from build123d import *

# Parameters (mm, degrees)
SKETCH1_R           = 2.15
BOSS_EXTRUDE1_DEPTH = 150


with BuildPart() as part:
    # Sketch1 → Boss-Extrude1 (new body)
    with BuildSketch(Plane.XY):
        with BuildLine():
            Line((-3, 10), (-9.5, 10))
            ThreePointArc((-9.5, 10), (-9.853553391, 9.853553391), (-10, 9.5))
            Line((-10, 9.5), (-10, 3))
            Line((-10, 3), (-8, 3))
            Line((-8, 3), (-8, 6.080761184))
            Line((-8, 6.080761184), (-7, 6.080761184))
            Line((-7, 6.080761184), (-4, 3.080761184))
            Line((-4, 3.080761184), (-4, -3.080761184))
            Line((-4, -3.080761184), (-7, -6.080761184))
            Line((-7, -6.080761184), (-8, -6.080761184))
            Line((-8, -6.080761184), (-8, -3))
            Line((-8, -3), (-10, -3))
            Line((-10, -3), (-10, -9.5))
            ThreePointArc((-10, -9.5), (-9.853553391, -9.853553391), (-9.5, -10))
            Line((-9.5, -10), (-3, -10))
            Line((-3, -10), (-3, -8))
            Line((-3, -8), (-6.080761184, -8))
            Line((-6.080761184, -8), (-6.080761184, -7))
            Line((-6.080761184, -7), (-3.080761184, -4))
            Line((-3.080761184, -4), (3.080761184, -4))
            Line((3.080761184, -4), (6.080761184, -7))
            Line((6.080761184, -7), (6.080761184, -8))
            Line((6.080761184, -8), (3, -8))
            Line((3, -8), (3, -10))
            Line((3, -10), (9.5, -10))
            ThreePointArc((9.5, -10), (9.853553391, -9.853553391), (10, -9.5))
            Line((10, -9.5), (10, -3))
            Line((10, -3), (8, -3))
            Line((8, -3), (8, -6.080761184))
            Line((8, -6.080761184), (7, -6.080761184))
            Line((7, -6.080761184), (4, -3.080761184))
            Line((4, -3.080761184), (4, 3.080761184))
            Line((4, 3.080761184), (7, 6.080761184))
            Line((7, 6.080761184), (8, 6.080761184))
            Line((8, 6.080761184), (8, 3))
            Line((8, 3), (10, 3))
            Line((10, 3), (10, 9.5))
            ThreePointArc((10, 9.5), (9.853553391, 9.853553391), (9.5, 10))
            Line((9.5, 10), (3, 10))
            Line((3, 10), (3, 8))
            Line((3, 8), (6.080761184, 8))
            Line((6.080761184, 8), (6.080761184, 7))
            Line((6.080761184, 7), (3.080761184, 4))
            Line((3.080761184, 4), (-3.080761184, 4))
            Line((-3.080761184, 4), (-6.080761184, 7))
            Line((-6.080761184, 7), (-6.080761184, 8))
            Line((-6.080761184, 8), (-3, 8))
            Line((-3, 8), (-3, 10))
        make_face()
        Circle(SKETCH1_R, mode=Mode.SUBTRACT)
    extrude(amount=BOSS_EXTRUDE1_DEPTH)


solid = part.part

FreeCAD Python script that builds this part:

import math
import FreeCAD as App
import Part
import Sketcher

doc = App.newDocument("Part")
body = doc.addObject("PartDesign::Body", "Body")

# Sketch on XY plane
sketch1 = body.newObject("Sketcher::SketchObject", "Sketch")
sketch1.AttachmentSupport = (doc.getObject("XY_Plane"), [""])
sketch1.MapMode = "FlatFace"
sketch1.addGeometry([
    Part.LineSegment(App.Vector(-3, 10, 0), App.Vector(-9.5, 10, 0)),  # 0
    Part.ArcOfCircle(Part.Circle(App.Vector(-9.5, 9.5, 0), App.Vector(0, 0, 1), 0.5), math.radians(90), math.radians(180)),  # 1
    Part.LineSegment(App.Vector(-10, 9.5, 0), App.Vector(-10, 3, 0)),  # 2
    Part.LineSegment(App.Vector(-10, 3, 0), App.Vector(-8, 3, 0)),  # 3
    Part.LineSegment(App.Vector(-8, 3, 0), App.Vector(-8, 6.08, 0)),  # 4
    Part.LineSegment(App.Vector(-8, 6.08, 0), App.Vector(-7, 6.08, 0)),  # 5
    Part.LineSegment(App.Vector(-7, 6.08, 0), App.Vector(-4, 3.08, 0)),  # 6
    Part.LineSegment(App.Vector(-4, 3.08, 0), App.Vector(-4, -3.08, 0)),  # 7
    Part.LineSegment(App.Vector(-4, -3.08, 0), App.Vector(-7, -6.08, 0)),  # 8
    Part.LineSegment(App.Vector(-7, -6.08, 0), App.Vector(-8, -6.08, 0)),  # 9
    Part.LineSegment(App.Vector(-8, -6.08, 0), App.Vector(-8, -3, 0)),  # 10
    Part.LineSegment(App.Vector(-8, -3, 0), App.Vector(-10, -3, 0)),  # 11
    Part.LineSegment(App.Vector(-10, -3, 0), App.Vector(-10, -9.5, 0)),  # 12
    Part.ArcOfCircle(Part.Circle(App.Vector(-9.5, -9.5, 0), App.Vector(0, 0, 1), 0.5), math.radians(180), math.radians(270)),  # 13
    Part.LineSegment(App.Vector(-9.5, -10, 0), App.Vector(-3, -10, 0)),  # 14
    Part.LineSegment(App.Vector(-3, -10, 0), App.Vector(-3, -8, 0)),  # 15
    Part.LineSegment(App.Vector(-3, -8, 0), App.Vector(-6.08, -8, 0)),  # 16
    Part.LineSegment(App.Vector(-6.08, -8, 0), App.Vector(-6.08, -7, 0)),  # 17
    Part.LineSegment(App.Vector(-6.08, -7, 0), App.Vector(-3.08, -4, 0)),  # 18
    Part.LineSegment(App.Vector(-3.08, -4, 0), App.Vector(3.08, -4, 0)),  # 19
    Part.LineSegment(App.Vector(3.08, -4, 0), App.Vector(6.08, -7, 0)),  # 20
    Part.LineSegment(App.Vector(6.08, -7, 0), App.Vector(6.08, -8, 0)),  # 21
    Part.LineSegment(App.Vector(6.08, -8, 0), App.Vector(3, -8, 0)),  # 22
    Part.LineSegment(App.Vector(3, -8, 0), App.Vector(3, -10, 0)),  # 23
    Part.LineSegment(App.Vector(3, -10, 0), App.Vector(9.5, -10, 0)),  # 24
    Part.ArcOfCircle(Part.Circle(App.Vector(9.5, -9.5, 0), App.Vector(0, 0, 1), 0.5), math.radians(-90), math.radians(0)),  # 25
    Part.LineSegment(App.Vector(10, -9.5, 0), App.Vector(10, -3, 0)),  # 26
    Part.LineSegment(App.Vector(10, -3, 0), App.Vector(8, -3, 0)),  # 27
    Part.LineSegment(App.Vector(8, -3, 0), App.Vector(8, -6.08, 0)),  # 28
    Part.LineSegment(App.Vector(8, -6.08, 0), App.Vector(7, -6.08, 0)),  # 29
    Part.LineSegment(App.Vector(7, -6.08, 0), App.Vector(4, -3.08, 0)),  # 30
    Part.LineSegment(App.Vector(4, -3.08, 0), App.Vector(4, 3.08, 0)),  # 31
    Part.LineSegment(App.Vector(4, 3.08, 0), App.Vector(7, 6.08, 0)),  # 32
    Part.LineSegment(App.Vector(7, 6.08, 0), App.Vector(8, 6.08, 0)),  # 33
    Part.LineSegment(App.Vector(8, 6.08, 0), App.Vector(8, 3, 0)),  # 34
    Part.LineSegment(App.Vector(8, 3, 0), App.Vector(10, 3, 0)),  # 35
    Part.LineSegment(App.Vector(10, 3, 0), App.Vector(10, 9.5, 0)),  # 36
    Part.ArcOfCircle(Part.Circle(App.Vector(9.5, 9.5, 0), App.Vector(0, 0, 1), 0.5), math.radians(0), math.radians(90)),  # 37
    Part.LineSegment(App.Vector(9.5, 10, 0), App.Vector(3, 10, 0)),  # 38
    Part.LineSegment(App.Vector(3, 10, 0), App.Vector(3, 8, 0)),  # 39
    Part.LineSegment(App.Vector(3, 8, 0), App.Vector(6.08, 8, 0)),  # 40
    Part.LineSegment(App.Vector(6.08, 8, 0), App.Vector(6.08, 7, 0)),  # 41
    Part.LineSegment(App.Vector(6.08, 7, 0), App.Vector(3.08, 4, 0)),  # 42
    Part.LineSegment(App.Vector(3.08, 4, 0), App.Vector(-3.08, 4, 0)),  # 43
    Part.LineSegment(App.Vector(-3.08, 4, 0), App.Vector(-6.08, 7, 0)),  # 44
    Part.LineSegment(App.Vector(-6.08, 7, 0), App.Vector(-6.08, 8, 0)),  # 45
    Part.LineSegment(App.Vector(-6.08, 8, 0), App.Vector(-3, 8, 0)),  # 46
    Part.LineSegment(App.Vector(-3, 8, 0), App.Vector(-3, 10, 0)),  # 47
    Part.Circle(App.Vector(0, 0, 0), App.Vector(0, 0, 1), 2.15),  # 48
], False)
sketch1.addConstraint([
    Sketcher.Constraint("Tangent", 0, 2, 1, 1),
    Sketcher.Constraint("Tangent", 1, 2, 2, 1),
    Sketcher.Constraint("Coincident", 2, 2, 3, 1),
    Sketcher.Constraint("Coincident", 3, 2, 4, 1),
    Sketcher.Constraint("Coincident", 4, 2, 5, 1),
    Sketcher.Constraint("Coincident", 5, 2, 6, 1),
    Sketcher.Constraint("Coincident", 6, 2, 7, 1),
    Sketcher.Constraint("Coincident", 7, 2, 8, 1),
    Sketcher.Constraint("Coincident", 8, 2, 9, 1),
    Sketcher.Constraint("Coincident", 9, 2, 10, 1),
    Sketcher.Constraint("Coincident", 10, 2, 11, 1),
    Sketcher.Constraint("Coincident", 11, 2, 12, 1),
    Sketcher.Constraint("Tangent", 12, 2, 13, 1),
    Sketcher.Constraint("Tangent", 13, 2, 14, 1),
    Sketcher.Constraint("Coincident", 14, 2, 15, 1),
    Sketcher.Constraint("Coincident", 15, 2, 16, 1),
    Sketcher.Constraint("Coincident", 16, 2, 17, 1),
    Sketcher.Constraint("Coincident", 17, 2, 18, 1),
    Sketcher.Constraint("Coincident", 18, 2, 19, 1),
    Sketcher.Constraint("Coincident", 19, 2, 20, 1),
    Sketcher.Constraint("Coincident", 20, 2, 21, 1),
    Sketcher.Constraint("Coincident", 21, 2, 22, 1),
    Sketcher.Constraint("Coincident", 22, 2, 23, 1),
    Sketcher.Constraint("Coincident", 23, 2, 24, 1),
    Sketcher.Constraint("Tangent", 24, 2, 25, 1),
    Sketcher.Constraint("Tangent", 25, 2, 26, 1),
    Sketcher.Constraint("Coincident", 26, 2, 27, 1),
    Sketcher.Constraint("Coincident", 27, 2, 28, 1),
    Sketcher.Constraint("Coincident", 28, 2, 29, 1),
    Sketcher.Constraint("Coincident", 29, 2, 30, 1),
    Sketcher.Constraint("Coincident", 30, 2, 31, 1),
    Sketcher.Constraint("Coincident", 31, 2, 32, 1),
    Sketcher.Constraint("Coincident", 32, 2, 33, 1),
    Sketcher.Constraint("Coincident", 33, 2, 34, 1),
    Sketcher.Constraint("Coincident", 34, 2, 35, 1),
    Sketcher.Constraint("Coincident", 35, 2, 36, 1),
    Sketcher.Constraint("Tangent", 36, 2, 37, 1),
    Sketcher.Constraint("Tangent", 37, 2, 38, 1),
    Sketcher.Constraint("Coincident", 38, 2, 39, 1),
    Sketcher.Constraint("Coincident", 39, 2, 40, 1),
    Sketcher.Constraint("Coincident", 40, 2, 41, 1),
    Sketcher.Constraint("Coincident", 41, 2, 42, 1),
    Sketcher.Constraint("Coincident", 42, 2, 43, 1),
    Sketcher.Constraint("Coincident", 43, 2, 44, 1),
    Sketcher.Constraint("Coincident", 44, 2, 45, 1),
    Sketcher.Constraint("Coincident", 45, 2, 46, 1),
    Sketcher.Constraint("Coincident", 46, 2, 47, 1),
    Sketcher.Constraint("Coincident", 47, 2, 0, 1),
    Sketcher.Constraint("Horizontal", 0),
    Sketcher.Constraint("Vertical", 2),
    Sketcher.Constraint("Horizontal", 3),
    Sketcher.Constraint("Vertical", 4),
    Sketcher.Constraint("Horizontal", 5),
    Sketcher.Constraint("Vertical", 7),
    Sketcher.Constraint("Horizontal", 9),
    Sketcher.Constraint("Vertical", 10),
    Sketcher.Constraint("Horizontal", 11),
    Sketcher.Constraint("Vertical", 12),
    Sketcher.Constraint("Horizontal", 14),
    Sketcher.Constraint("Vertical", 15),
    Sketcher.Constraint("Horizontal", 16),
    Sketcher.Constraint("Vertical", 17),
    Sketcher.Constraint("Horizontal", 19),
    Sketcher.Constraint("Vertical", 21),
    Sketcher.Constraint("Horizontal", 22),
    Sketcher.Constraint("Vertical", 23),
    Sketcher.Constraint("Horizontal", 24),
    Sketcher.Constraint("Vertical", 26),
    Sketcher.Constraint("Horizontal", 27),
    Sketcher.Constraint("Vertical", 28),
    Sketcher.Constraint("Horizontal", 29),
    Sketcher.Constraint("Vertical", 31),
    Sketcher.Constraint("Horizontal", 33),
    Sketcher.Constraint("Vertical", 34),
    Sketcher.Constraint("Horizontal", 35),
    Sketcher.Constraint("Vertical", 36),
    Sketcher.Constraint("Horizontal", 38),
    Sketcher.Constraint("Vertical", 39),
    Sketcher.Constraint("Horizontal", 40),
    Sketcher.Constraint("Vertical", 41),
    Sketcher.Constraint("Horizontal", 43),
    Sketcher.Constraint("Vertical", 45),
    Sketcher.Constraint("Horizontal", 46),
    Sketcher.Constraint("Vertical", 47),
    Sketcher.Constraint("Coincident", 48, 3, -1, 1),
    Sketcher.Constraint("Equal", 1, 13),
    Sketcher.Constraint("Equal", 13, 25),
    Sketcher.Constraint("Equal", 25, 37),
    Sketcher.Constraint("Symmetric", 1, 3, 25, 3, -1, 1),
    Sketcher.Constraint("Symmetric", 13, 3, 37, 3, -1, 1),
    Sketcher.Constraint("Symmetric", 3, 2, 27, 2, -1, 1),
    Sketcher.Constraint("Symmetric", 5, 2, 29, 2, -1, 1),
    Sketcher.Constraint("Symmetric", 6, 2, 30, 2, -1, 1),
    Sketcher.Constraint("Symmetric", 8, 2, 32, 2, -1, 1),
    Sketcher.Constraint("Symmetric", 10, 2, 34, 2, -1, 1),
    Sketcher.Constraint("Symmetric", 15, 2, 39, 2, -1, 1),
    Sketcher.Constraint("Symmetric", 17, 2, 41, 2, -1, 1),
    Sketcher.Constraint("Symmetric", 18, 2, 42, 2, -1, 1),
    Sketcher.Constraint("Symmetric", 20, 2, 44, 2, -1, 1),
    Sketcher.Constraint("Symmetric", 22, 2, 46, 2, -1, 1),
    Sketcher.Constraint("Symmetric", 13, 3, 25, 3, -2),
    Sketcher.Constraint("Symmetric", 17, 2, 20, 2, -2),
    Sketcher.Constraint("Symmetric", 15, 2, 22, 2, -2),
    Sketcher.Constraint("Symmetric", 10, 2, 27, 2, -2),
    Sketcher.Constraint("Symmetric", 8, 2, 29, 2, -2),
    Sketcher.Constraint("Perpendicular", 6, 8),
    Sketcher.Constraint("Parallel", 8, 18),
    Sketcher.Constraint("Perpendicular", 18, 20),
    Sketcher.Constraint("Perpendicular", 30, 32),
    Sketcher.Constraint("Perpendicular", 42, 44),
    Sketcher.Constraint("Horizontal", 7, 2, 30, 2),
    Sketcher.Constraint("Equal", 38, 2),
    Sketcher.Constraint("Equal", 46, 4),
    Sketcher.Constraint("Equal", 43, 7),
    Sketcher.Constraint("Equal", 35, 15),
    Sketcher.Constraint("Equal", 33, 17),
    Sketcher.Constraint("Equal", 8, 18),
    Sketcher.Constraint("Diameter", 48, 4.3),
    Sketcher.Constraint("Radius", 1, 0.5),
    Sketcher.Constraint("DistanceX", 3, 1, 3, 2, 2.0),
    Sketcher.Constraint("DistanceX", 5, 1, 5, 2, 1.0),
    Sketcher.Constraint("DistanceX", 0, 2, 0, 1, 6.5),
    Sketcher.Constraint("DistanceY", -1, 1, 0, 2, 10.0),
    Sketcher.Constraint("DistanceX", 6, 2, -1, 1, 4.0),
    Sketcher.Constraint("DistanceX", 16, 2, 16, 1, 3.080761),
])
pad1 = body.newObject("PartDesign::Pad", "Pad")
pad1.Profile = sketch1
pad1.Length = 150

doc.recompute()
